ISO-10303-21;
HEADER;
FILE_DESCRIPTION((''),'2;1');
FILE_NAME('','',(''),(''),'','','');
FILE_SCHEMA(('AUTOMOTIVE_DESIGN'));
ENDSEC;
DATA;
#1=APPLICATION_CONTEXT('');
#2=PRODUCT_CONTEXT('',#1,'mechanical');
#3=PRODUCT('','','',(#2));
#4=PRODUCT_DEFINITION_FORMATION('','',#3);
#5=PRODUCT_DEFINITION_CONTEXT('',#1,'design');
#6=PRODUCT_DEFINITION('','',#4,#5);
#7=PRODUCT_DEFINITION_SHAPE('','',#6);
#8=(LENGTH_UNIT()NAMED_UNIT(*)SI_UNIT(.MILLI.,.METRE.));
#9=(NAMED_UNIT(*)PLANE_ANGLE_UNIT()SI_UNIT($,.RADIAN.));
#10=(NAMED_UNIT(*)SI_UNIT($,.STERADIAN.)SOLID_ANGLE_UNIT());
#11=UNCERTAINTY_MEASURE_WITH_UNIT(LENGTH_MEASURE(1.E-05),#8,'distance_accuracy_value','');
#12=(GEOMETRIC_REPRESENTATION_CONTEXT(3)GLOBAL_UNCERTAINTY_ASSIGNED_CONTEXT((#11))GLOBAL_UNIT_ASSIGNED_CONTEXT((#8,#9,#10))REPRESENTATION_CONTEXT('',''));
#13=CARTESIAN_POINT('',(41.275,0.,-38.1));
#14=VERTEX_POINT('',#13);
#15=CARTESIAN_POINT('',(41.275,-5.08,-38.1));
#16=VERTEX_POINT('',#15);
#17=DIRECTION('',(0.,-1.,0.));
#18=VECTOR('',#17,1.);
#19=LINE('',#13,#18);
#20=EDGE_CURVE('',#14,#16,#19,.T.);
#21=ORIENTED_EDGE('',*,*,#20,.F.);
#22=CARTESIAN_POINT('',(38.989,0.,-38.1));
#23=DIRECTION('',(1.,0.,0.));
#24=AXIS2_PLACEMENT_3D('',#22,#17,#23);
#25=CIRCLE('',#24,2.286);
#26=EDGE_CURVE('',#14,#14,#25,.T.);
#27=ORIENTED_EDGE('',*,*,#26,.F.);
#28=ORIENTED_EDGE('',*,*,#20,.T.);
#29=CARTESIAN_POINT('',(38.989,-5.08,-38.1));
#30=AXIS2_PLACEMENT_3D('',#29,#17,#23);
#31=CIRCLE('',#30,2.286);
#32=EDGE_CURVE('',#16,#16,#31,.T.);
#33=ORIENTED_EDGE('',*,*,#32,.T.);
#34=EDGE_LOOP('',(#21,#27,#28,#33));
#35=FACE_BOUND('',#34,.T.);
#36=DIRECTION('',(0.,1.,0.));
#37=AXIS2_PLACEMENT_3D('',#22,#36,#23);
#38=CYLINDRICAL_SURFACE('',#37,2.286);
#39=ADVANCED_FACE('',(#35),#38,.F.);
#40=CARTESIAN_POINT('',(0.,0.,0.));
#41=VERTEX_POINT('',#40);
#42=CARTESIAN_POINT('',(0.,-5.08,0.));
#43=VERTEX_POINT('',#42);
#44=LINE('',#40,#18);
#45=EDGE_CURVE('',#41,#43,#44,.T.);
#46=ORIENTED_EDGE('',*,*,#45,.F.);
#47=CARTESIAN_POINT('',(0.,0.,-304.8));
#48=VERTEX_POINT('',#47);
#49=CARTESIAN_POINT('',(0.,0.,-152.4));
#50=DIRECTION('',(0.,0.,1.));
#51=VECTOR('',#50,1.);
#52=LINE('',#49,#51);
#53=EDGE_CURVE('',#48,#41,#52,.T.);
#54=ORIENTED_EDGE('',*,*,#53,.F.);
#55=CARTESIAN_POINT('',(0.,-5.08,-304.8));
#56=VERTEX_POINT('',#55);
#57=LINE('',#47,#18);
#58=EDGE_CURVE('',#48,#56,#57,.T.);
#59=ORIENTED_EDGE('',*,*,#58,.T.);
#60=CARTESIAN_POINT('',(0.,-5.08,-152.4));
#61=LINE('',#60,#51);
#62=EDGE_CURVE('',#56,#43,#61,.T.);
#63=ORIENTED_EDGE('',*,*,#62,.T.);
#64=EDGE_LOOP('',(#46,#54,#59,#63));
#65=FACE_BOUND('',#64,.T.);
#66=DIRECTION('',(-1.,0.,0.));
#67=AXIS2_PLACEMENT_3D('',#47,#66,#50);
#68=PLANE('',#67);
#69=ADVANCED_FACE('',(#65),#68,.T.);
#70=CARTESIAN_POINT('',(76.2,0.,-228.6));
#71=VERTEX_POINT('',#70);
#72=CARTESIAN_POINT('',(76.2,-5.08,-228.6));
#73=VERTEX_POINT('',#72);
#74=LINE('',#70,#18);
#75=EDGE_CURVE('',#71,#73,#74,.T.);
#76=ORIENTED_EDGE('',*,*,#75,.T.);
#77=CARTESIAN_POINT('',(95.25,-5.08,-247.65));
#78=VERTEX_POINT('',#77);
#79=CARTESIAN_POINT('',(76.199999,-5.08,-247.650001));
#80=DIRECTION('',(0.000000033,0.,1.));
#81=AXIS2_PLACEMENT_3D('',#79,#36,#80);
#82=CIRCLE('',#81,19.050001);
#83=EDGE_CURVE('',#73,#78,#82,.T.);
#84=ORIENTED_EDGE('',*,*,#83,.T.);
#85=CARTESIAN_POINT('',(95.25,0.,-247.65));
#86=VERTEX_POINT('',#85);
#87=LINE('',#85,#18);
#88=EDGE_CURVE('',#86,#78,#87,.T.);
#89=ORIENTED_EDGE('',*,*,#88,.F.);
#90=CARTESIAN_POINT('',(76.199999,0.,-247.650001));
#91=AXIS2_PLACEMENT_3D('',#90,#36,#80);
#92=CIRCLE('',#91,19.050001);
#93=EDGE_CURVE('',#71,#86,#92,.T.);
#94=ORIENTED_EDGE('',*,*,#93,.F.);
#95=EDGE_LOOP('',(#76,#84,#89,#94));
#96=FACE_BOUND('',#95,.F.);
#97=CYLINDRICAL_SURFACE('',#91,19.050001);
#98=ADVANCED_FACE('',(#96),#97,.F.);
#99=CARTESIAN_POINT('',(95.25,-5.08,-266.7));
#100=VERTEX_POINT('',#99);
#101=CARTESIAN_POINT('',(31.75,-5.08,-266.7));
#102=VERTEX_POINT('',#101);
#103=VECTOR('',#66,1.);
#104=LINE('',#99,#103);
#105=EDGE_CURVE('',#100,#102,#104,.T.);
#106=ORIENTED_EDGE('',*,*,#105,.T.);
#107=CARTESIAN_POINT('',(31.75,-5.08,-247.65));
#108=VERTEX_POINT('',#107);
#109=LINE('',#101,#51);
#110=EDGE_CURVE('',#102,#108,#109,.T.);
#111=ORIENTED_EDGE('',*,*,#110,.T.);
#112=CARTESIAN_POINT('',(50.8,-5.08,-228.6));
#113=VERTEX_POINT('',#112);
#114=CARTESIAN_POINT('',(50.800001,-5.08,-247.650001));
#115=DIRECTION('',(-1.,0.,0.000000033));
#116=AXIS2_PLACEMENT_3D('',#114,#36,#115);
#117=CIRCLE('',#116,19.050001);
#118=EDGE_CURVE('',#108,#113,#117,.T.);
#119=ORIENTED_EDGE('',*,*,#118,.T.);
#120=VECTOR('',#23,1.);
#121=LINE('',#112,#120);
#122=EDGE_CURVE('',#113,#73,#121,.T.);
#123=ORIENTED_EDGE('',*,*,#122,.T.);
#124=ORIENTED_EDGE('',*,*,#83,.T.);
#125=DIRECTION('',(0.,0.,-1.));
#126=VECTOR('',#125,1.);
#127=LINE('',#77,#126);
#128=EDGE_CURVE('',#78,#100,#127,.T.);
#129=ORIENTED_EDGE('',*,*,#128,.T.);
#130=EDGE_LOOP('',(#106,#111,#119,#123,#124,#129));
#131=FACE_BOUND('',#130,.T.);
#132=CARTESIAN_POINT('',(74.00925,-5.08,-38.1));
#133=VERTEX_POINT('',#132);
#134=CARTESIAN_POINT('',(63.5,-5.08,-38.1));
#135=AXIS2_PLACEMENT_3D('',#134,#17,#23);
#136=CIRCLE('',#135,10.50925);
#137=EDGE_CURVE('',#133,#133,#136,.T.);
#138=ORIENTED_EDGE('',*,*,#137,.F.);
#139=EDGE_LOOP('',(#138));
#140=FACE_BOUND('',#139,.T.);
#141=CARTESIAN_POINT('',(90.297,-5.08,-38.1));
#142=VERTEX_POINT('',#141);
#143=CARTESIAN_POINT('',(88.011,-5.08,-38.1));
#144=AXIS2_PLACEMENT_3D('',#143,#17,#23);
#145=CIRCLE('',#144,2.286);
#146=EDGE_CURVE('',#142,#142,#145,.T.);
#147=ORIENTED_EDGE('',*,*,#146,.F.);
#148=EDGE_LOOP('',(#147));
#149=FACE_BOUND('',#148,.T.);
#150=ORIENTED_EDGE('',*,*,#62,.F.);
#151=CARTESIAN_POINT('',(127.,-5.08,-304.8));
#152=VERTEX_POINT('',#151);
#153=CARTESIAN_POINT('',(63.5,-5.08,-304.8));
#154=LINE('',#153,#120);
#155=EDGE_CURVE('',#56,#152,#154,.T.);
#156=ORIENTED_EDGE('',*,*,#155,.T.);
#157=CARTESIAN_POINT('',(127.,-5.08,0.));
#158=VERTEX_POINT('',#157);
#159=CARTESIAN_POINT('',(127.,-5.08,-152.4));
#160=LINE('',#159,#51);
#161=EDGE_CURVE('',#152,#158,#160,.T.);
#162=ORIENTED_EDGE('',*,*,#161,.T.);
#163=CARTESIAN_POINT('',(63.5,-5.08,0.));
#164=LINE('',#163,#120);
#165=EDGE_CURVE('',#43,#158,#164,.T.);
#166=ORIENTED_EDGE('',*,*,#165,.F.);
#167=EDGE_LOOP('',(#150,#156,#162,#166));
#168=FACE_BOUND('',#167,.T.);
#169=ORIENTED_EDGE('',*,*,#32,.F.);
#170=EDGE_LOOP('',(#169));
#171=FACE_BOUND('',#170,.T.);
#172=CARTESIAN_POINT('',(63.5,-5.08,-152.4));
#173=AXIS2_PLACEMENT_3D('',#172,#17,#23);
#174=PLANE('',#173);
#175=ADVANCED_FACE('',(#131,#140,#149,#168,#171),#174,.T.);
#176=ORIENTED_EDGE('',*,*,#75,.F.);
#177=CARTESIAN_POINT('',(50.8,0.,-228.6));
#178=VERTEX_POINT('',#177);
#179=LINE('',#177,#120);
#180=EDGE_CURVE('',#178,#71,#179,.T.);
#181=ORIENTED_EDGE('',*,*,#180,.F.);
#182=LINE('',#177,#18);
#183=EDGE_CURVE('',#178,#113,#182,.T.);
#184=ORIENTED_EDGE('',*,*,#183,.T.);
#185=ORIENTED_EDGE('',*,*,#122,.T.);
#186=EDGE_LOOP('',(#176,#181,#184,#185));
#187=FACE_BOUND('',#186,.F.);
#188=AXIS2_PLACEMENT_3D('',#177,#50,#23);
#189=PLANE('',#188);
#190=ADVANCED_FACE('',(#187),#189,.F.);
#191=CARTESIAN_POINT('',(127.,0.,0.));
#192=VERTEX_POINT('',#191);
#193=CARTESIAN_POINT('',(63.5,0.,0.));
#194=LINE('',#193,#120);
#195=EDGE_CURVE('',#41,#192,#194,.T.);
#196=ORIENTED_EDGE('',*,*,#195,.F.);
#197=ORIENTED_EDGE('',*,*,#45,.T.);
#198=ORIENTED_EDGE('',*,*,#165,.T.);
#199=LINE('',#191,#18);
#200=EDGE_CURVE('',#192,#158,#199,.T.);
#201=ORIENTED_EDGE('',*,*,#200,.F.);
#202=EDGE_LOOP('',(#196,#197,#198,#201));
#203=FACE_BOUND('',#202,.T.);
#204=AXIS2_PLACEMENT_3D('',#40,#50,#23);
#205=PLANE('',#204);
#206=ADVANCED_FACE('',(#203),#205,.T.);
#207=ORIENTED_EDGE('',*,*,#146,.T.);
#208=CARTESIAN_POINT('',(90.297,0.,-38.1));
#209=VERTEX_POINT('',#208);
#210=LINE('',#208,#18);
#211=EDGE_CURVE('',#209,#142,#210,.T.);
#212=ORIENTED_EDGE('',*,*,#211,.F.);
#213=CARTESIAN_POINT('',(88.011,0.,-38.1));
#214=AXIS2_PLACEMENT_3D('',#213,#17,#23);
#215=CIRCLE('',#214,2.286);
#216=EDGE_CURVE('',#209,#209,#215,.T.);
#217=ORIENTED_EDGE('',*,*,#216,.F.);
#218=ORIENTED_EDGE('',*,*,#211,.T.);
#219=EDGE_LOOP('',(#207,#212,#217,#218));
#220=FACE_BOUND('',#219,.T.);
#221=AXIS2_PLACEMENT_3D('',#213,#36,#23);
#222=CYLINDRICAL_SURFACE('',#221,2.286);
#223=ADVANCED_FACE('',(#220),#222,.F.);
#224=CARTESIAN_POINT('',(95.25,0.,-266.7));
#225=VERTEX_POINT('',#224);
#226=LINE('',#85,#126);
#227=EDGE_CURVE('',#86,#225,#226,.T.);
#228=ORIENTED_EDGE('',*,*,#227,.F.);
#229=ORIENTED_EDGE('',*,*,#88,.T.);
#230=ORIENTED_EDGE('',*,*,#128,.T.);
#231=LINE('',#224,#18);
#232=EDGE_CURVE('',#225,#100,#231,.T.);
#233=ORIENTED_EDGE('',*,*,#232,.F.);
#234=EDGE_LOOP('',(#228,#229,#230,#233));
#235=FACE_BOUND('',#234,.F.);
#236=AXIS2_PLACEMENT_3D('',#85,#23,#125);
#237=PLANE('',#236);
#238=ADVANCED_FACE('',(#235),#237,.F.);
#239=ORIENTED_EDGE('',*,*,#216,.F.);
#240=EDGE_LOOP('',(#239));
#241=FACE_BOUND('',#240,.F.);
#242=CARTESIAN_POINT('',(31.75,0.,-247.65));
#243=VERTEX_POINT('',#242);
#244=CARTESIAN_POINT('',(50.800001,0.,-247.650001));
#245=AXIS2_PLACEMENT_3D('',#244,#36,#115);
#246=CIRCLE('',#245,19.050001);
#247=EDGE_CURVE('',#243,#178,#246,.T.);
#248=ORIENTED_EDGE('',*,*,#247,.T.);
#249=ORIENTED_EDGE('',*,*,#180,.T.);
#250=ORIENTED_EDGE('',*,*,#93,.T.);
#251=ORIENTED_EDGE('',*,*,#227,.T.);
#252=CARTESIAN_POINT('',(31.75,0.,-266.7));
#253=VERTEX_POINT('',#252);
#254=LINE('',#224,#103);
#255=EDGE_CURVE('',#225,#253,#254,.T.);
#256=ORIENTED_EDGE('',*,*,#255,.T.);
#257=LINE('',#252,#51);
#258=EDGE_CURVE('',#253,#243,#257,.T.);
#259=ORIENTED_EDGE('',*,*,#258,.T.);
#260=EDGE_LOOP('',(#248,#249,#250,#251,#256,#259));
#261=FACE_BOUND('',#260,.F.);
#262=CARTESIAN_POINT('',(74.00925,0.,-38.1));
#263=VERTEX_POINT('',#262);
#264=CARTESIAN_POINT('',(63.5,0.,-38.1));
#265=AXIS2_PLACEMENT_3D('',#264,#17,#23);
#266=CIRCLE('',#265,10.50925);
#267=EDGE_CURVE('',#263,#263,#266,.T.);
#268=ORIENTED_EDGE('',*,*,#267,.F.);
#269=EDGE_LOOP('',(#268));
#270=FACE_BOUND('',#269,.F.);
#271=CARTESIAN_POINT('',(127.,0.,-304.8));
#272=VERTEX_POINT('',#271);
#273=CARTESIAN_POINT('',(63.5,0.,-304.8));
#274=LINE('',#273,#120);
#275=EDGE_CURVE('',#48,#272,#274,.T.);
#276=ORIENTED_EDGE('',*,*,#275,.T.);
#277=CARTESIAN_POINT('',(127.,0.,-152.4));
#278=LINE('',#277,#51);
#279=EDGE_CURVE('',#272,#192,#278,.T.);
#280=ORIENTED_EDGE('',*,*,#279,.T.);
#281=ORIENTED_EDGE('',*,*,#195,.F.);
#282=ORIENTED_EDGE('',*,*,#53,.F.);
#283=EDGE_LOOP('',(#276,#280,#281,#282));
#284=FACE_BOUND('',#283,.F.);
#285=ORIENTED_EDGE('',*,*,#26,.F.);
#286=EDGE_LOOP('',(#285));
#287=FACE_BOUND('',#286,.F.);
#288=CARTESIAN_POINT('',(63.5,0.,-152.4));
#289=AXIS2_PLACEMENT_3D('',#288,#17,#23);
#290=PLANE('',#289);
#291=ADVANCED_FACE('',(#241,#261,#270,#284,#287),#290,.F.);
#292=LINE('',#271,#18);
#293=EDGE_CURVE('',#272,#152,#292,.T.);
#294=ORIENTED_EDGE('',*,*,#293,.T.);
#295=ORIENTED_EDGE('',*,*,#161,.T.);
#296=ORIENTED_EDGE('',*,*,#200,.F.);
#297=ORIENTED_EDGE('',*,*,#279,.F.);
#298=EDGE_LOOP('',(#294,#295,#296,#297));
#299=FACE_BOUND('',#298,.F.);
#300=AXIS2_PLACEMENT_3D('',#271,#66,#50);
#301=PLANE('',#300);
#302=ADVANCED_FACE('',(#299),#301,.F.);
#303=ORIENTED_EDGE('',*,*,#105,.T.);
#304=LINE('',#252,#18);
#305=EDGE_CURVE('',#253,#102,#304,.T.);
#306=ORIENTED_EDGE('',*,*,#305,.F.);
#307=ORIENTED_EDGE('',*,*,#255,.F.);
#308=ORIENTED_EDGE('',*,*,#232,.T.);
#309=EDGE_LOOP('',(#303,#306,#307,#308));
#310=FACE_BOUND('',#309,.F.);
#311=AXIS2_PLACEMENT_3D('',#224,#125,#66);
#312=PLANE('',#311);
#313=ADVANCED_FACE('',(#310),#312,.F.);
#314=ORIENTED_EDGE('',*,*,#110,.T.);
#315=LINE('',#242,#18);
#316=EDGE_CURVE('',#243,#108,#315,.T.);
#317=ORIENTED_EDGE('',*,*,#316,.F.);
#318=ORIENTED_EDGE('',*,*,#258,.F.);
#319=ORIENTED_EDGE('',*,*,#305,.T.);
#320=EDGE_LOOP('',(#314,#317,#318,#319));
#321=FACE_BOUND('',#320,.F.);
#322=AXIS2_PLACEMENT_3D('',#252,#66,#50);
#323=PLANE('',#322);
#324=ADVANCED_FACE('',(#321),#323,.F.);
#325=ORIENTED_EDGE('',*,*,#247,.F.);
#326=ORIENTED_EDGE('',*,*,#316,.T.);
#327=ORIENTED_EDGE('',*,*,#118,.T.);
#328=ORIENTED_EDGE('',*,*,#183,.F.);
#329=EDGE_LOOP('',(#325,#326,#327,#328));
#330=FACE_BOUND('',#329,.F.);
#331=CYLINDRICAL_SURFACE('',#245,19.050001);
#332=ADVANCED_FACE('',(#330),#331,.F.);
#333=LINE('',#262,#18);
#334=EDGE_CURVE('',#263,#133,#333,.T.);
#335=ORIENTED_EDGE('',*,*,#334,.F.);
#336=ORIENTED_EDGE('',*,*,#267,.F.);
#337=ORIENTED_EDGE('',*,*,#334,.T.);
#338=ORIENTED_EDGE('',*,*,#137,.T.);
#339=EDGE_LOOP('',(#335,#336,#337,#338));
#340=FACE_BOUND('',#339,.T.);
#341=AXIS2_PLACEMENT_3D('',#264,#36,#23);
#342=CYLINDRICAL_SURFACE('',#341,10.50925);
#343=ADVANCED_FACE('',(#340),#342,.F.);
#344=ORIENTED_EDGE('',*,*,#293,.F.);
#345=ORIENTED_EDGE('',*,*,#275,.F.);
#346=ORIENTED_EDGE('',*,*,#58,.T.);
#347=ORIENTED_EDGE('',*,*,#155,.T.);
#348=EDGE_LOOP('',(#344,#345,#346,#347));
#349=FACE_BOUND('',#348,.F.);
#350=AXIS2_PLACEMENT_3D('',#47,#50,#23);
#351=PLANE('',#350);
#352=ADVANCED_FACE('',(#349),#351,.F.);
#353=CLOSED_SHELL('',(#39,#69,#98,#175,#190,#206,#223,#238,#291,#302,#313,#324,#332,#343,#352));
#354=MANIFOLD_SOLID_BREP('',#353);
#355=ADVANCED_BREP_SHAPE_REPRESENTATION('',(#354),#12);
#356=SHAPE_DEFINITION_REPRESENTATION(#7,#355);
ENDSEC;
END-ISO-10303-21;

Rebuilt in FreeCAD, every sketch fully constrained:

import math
import FreeCAD as App
import Part
import Sketcher

V = App.Vector
Q = App.Units.Quantity


def add_polygon(sketch, points):
    """Adds a closed chain of lines whose ends are joined by coincident constraints."""
    first, n = sketch.GeometryCount, len(points)
    for a, b in zip(points, points[1:] + points[:1]):
        sketch.addGeometry(Part.LineSegment(App.Vector(*a, 0), App.Vector(*b, 0)), False)
    for i in range(n):
        sketch.addConstraint(Sketcher.Constraint("Coincident", first + i, 2, first + (i + 1) % n, 1))

doc = App.newDocument("Part")
body = doc.addObject("PartDesign::Body", "Body")

# Sketch on XZ plane
sketch1 = doc.addObject("Sketcher::SketchObject", "Sketch")
body.addObject(sketch1)
sketch1.AttachmentSupport = (doc.XZ_Plane, [""])
sketch1.MapMode = "FlatFace"
add_polygon(sketch1, [(0, 0), (0, -304.8), (127, -304.8), (127, 0)])  # lines 0-3
sketch1.addGeometry(Part.LineSegment(V(95.2, -247.7, 0), V(95.2, -266.7, 0)), False)  # 4
sketch1.addGeometry(Part.LineSegment(V(95.2, -266.7, 0), V(31.8, -266.7, 0)), False)  # 5
sketch1.addGeometry(Part.LineSegment(V(31.8, -266.7, 0), V(31.8, -247.7, 0)), False)  # 6
sketch1.addGeometry(Part.ArcOfCircle(Part.Circle(V(50.8, -247.7, 0), V(0, 0, 1), 19.1), math.radians(90), math.radians(180)), False)  # 7
sketch1.addGeometry(Part.LineSegment(V(50.8, -228.6, 0), V(76.2, -228.6, 0)), False)  # 8
sketch1.addGeometry(Part.ArcOfCircle(Part.Circle(V(76.2, -247.7, 0), V(0, 0, 1), 19.1), math.radians(0), math.radians(90)), False)  # 9
sketch1.addGeometry(Part.Circle(V(39, -38.1, 0), V(0, 0, 1), 2.3), False)  # 10
sketch1.addGeometry(Part.Circle(V(63.5, -38.1, 0), V(0, 0, 1), 10.5), False)  # 11
sketch1.addGeometry(Part.Circle(V(88, -38.1, 0), V(0, 0, 1), 2.3), False)  # 12
sketch1.addConstraint([
    Sketcher.Constraint("Coincident", 4, 2, 5, 1),
    Sketcher.Constraint("Coincident", 5, 2, 6, 1),
    Sketcher.Constraint("Tangent", 6, 2, 7, 2),
    Sketcher.Constraint("Tangent", 7, 1, 8, 1),
    Sketcher.Constraint("Tangent", 8, 2, 9, 2),
    Sketcher.Constraint("Tangent", 9, 1, 4, 1),
    Sketcher.Constraint("Vertical", 0),
    Sketcher.Constraint("Horizontal", 1),
    Sketcher.Constraint("Vertical", 2),
    Sketcher.Constraint("Horizontal", 3),
    Sketcher.Constraint("Vertical", 4),
    Sketcher.Constraint("Horizontal", 5),
    Sketcher.Constraint("Vertical", 6),
    Sketcher.Constraint("Horizontal", 8),
    Sketcher.Constraint("Coincident", 3, 2, -1, 1),
    Sketcher.Constraint("Equal", 7, 9),
    Sketcher.Constraint("Equal", 10, 12),
    Sketcher.Constraint("Horizontal", 10, 3, 11, 3),
    Sketcher.Constraint("Horizontal", 11, 3, 12, 3),
    Sketcher.Constraint("Diameter", 10, Q("0.18 in")),
    Sketcher.Constraint("DistanceX", 1, 1, 1, 2, Q("5 in")),
    Sketcher.Constraint("DistanceX", 8, 1, 8, 2, Q("1 in")),
    Sketcher.Constraint("DistanceY", 0, 2, 0, 1, Q("12 in")),
    Sketcher.Constraint("Radius", 7, Q("0.75 in")),
    Sketcher.Constraint("DistanceX", -1, 1, 7, 3, Q("2 in")),
    Sketcher.Constraint("DistanceY", 7, 1, -1, 1, Q("9 in")),
    Sketcher.Constraint("DistanceY", 4, 2, 12, 3, Q("9 in")),
    Sketcher.Constraint("Diameter", 11, Q("0.8275 in")),
    Sketcher.Constraint("DistanceY", 4, 2, 4, 1, Q("0.75 in")),
    Sketcher.Constraint("DistanceX", -1, 1, 11, 3, Q("2.5 in")),
    Sketcher.Constraint("DistanceX", 10, 3, 12, 3, Q("1.93 in")),
    Sketcher.Constraint("DistanceX", -1, 1, 10, 3, Q("1.535 in")),
])
pad1 = doc.addObject("PartDesign::Pad", "Pad")
body.addObject(pad1)
pad1.Profile = sketch1
pad1.Length = Q("0.2 in")

doc.recompute()
